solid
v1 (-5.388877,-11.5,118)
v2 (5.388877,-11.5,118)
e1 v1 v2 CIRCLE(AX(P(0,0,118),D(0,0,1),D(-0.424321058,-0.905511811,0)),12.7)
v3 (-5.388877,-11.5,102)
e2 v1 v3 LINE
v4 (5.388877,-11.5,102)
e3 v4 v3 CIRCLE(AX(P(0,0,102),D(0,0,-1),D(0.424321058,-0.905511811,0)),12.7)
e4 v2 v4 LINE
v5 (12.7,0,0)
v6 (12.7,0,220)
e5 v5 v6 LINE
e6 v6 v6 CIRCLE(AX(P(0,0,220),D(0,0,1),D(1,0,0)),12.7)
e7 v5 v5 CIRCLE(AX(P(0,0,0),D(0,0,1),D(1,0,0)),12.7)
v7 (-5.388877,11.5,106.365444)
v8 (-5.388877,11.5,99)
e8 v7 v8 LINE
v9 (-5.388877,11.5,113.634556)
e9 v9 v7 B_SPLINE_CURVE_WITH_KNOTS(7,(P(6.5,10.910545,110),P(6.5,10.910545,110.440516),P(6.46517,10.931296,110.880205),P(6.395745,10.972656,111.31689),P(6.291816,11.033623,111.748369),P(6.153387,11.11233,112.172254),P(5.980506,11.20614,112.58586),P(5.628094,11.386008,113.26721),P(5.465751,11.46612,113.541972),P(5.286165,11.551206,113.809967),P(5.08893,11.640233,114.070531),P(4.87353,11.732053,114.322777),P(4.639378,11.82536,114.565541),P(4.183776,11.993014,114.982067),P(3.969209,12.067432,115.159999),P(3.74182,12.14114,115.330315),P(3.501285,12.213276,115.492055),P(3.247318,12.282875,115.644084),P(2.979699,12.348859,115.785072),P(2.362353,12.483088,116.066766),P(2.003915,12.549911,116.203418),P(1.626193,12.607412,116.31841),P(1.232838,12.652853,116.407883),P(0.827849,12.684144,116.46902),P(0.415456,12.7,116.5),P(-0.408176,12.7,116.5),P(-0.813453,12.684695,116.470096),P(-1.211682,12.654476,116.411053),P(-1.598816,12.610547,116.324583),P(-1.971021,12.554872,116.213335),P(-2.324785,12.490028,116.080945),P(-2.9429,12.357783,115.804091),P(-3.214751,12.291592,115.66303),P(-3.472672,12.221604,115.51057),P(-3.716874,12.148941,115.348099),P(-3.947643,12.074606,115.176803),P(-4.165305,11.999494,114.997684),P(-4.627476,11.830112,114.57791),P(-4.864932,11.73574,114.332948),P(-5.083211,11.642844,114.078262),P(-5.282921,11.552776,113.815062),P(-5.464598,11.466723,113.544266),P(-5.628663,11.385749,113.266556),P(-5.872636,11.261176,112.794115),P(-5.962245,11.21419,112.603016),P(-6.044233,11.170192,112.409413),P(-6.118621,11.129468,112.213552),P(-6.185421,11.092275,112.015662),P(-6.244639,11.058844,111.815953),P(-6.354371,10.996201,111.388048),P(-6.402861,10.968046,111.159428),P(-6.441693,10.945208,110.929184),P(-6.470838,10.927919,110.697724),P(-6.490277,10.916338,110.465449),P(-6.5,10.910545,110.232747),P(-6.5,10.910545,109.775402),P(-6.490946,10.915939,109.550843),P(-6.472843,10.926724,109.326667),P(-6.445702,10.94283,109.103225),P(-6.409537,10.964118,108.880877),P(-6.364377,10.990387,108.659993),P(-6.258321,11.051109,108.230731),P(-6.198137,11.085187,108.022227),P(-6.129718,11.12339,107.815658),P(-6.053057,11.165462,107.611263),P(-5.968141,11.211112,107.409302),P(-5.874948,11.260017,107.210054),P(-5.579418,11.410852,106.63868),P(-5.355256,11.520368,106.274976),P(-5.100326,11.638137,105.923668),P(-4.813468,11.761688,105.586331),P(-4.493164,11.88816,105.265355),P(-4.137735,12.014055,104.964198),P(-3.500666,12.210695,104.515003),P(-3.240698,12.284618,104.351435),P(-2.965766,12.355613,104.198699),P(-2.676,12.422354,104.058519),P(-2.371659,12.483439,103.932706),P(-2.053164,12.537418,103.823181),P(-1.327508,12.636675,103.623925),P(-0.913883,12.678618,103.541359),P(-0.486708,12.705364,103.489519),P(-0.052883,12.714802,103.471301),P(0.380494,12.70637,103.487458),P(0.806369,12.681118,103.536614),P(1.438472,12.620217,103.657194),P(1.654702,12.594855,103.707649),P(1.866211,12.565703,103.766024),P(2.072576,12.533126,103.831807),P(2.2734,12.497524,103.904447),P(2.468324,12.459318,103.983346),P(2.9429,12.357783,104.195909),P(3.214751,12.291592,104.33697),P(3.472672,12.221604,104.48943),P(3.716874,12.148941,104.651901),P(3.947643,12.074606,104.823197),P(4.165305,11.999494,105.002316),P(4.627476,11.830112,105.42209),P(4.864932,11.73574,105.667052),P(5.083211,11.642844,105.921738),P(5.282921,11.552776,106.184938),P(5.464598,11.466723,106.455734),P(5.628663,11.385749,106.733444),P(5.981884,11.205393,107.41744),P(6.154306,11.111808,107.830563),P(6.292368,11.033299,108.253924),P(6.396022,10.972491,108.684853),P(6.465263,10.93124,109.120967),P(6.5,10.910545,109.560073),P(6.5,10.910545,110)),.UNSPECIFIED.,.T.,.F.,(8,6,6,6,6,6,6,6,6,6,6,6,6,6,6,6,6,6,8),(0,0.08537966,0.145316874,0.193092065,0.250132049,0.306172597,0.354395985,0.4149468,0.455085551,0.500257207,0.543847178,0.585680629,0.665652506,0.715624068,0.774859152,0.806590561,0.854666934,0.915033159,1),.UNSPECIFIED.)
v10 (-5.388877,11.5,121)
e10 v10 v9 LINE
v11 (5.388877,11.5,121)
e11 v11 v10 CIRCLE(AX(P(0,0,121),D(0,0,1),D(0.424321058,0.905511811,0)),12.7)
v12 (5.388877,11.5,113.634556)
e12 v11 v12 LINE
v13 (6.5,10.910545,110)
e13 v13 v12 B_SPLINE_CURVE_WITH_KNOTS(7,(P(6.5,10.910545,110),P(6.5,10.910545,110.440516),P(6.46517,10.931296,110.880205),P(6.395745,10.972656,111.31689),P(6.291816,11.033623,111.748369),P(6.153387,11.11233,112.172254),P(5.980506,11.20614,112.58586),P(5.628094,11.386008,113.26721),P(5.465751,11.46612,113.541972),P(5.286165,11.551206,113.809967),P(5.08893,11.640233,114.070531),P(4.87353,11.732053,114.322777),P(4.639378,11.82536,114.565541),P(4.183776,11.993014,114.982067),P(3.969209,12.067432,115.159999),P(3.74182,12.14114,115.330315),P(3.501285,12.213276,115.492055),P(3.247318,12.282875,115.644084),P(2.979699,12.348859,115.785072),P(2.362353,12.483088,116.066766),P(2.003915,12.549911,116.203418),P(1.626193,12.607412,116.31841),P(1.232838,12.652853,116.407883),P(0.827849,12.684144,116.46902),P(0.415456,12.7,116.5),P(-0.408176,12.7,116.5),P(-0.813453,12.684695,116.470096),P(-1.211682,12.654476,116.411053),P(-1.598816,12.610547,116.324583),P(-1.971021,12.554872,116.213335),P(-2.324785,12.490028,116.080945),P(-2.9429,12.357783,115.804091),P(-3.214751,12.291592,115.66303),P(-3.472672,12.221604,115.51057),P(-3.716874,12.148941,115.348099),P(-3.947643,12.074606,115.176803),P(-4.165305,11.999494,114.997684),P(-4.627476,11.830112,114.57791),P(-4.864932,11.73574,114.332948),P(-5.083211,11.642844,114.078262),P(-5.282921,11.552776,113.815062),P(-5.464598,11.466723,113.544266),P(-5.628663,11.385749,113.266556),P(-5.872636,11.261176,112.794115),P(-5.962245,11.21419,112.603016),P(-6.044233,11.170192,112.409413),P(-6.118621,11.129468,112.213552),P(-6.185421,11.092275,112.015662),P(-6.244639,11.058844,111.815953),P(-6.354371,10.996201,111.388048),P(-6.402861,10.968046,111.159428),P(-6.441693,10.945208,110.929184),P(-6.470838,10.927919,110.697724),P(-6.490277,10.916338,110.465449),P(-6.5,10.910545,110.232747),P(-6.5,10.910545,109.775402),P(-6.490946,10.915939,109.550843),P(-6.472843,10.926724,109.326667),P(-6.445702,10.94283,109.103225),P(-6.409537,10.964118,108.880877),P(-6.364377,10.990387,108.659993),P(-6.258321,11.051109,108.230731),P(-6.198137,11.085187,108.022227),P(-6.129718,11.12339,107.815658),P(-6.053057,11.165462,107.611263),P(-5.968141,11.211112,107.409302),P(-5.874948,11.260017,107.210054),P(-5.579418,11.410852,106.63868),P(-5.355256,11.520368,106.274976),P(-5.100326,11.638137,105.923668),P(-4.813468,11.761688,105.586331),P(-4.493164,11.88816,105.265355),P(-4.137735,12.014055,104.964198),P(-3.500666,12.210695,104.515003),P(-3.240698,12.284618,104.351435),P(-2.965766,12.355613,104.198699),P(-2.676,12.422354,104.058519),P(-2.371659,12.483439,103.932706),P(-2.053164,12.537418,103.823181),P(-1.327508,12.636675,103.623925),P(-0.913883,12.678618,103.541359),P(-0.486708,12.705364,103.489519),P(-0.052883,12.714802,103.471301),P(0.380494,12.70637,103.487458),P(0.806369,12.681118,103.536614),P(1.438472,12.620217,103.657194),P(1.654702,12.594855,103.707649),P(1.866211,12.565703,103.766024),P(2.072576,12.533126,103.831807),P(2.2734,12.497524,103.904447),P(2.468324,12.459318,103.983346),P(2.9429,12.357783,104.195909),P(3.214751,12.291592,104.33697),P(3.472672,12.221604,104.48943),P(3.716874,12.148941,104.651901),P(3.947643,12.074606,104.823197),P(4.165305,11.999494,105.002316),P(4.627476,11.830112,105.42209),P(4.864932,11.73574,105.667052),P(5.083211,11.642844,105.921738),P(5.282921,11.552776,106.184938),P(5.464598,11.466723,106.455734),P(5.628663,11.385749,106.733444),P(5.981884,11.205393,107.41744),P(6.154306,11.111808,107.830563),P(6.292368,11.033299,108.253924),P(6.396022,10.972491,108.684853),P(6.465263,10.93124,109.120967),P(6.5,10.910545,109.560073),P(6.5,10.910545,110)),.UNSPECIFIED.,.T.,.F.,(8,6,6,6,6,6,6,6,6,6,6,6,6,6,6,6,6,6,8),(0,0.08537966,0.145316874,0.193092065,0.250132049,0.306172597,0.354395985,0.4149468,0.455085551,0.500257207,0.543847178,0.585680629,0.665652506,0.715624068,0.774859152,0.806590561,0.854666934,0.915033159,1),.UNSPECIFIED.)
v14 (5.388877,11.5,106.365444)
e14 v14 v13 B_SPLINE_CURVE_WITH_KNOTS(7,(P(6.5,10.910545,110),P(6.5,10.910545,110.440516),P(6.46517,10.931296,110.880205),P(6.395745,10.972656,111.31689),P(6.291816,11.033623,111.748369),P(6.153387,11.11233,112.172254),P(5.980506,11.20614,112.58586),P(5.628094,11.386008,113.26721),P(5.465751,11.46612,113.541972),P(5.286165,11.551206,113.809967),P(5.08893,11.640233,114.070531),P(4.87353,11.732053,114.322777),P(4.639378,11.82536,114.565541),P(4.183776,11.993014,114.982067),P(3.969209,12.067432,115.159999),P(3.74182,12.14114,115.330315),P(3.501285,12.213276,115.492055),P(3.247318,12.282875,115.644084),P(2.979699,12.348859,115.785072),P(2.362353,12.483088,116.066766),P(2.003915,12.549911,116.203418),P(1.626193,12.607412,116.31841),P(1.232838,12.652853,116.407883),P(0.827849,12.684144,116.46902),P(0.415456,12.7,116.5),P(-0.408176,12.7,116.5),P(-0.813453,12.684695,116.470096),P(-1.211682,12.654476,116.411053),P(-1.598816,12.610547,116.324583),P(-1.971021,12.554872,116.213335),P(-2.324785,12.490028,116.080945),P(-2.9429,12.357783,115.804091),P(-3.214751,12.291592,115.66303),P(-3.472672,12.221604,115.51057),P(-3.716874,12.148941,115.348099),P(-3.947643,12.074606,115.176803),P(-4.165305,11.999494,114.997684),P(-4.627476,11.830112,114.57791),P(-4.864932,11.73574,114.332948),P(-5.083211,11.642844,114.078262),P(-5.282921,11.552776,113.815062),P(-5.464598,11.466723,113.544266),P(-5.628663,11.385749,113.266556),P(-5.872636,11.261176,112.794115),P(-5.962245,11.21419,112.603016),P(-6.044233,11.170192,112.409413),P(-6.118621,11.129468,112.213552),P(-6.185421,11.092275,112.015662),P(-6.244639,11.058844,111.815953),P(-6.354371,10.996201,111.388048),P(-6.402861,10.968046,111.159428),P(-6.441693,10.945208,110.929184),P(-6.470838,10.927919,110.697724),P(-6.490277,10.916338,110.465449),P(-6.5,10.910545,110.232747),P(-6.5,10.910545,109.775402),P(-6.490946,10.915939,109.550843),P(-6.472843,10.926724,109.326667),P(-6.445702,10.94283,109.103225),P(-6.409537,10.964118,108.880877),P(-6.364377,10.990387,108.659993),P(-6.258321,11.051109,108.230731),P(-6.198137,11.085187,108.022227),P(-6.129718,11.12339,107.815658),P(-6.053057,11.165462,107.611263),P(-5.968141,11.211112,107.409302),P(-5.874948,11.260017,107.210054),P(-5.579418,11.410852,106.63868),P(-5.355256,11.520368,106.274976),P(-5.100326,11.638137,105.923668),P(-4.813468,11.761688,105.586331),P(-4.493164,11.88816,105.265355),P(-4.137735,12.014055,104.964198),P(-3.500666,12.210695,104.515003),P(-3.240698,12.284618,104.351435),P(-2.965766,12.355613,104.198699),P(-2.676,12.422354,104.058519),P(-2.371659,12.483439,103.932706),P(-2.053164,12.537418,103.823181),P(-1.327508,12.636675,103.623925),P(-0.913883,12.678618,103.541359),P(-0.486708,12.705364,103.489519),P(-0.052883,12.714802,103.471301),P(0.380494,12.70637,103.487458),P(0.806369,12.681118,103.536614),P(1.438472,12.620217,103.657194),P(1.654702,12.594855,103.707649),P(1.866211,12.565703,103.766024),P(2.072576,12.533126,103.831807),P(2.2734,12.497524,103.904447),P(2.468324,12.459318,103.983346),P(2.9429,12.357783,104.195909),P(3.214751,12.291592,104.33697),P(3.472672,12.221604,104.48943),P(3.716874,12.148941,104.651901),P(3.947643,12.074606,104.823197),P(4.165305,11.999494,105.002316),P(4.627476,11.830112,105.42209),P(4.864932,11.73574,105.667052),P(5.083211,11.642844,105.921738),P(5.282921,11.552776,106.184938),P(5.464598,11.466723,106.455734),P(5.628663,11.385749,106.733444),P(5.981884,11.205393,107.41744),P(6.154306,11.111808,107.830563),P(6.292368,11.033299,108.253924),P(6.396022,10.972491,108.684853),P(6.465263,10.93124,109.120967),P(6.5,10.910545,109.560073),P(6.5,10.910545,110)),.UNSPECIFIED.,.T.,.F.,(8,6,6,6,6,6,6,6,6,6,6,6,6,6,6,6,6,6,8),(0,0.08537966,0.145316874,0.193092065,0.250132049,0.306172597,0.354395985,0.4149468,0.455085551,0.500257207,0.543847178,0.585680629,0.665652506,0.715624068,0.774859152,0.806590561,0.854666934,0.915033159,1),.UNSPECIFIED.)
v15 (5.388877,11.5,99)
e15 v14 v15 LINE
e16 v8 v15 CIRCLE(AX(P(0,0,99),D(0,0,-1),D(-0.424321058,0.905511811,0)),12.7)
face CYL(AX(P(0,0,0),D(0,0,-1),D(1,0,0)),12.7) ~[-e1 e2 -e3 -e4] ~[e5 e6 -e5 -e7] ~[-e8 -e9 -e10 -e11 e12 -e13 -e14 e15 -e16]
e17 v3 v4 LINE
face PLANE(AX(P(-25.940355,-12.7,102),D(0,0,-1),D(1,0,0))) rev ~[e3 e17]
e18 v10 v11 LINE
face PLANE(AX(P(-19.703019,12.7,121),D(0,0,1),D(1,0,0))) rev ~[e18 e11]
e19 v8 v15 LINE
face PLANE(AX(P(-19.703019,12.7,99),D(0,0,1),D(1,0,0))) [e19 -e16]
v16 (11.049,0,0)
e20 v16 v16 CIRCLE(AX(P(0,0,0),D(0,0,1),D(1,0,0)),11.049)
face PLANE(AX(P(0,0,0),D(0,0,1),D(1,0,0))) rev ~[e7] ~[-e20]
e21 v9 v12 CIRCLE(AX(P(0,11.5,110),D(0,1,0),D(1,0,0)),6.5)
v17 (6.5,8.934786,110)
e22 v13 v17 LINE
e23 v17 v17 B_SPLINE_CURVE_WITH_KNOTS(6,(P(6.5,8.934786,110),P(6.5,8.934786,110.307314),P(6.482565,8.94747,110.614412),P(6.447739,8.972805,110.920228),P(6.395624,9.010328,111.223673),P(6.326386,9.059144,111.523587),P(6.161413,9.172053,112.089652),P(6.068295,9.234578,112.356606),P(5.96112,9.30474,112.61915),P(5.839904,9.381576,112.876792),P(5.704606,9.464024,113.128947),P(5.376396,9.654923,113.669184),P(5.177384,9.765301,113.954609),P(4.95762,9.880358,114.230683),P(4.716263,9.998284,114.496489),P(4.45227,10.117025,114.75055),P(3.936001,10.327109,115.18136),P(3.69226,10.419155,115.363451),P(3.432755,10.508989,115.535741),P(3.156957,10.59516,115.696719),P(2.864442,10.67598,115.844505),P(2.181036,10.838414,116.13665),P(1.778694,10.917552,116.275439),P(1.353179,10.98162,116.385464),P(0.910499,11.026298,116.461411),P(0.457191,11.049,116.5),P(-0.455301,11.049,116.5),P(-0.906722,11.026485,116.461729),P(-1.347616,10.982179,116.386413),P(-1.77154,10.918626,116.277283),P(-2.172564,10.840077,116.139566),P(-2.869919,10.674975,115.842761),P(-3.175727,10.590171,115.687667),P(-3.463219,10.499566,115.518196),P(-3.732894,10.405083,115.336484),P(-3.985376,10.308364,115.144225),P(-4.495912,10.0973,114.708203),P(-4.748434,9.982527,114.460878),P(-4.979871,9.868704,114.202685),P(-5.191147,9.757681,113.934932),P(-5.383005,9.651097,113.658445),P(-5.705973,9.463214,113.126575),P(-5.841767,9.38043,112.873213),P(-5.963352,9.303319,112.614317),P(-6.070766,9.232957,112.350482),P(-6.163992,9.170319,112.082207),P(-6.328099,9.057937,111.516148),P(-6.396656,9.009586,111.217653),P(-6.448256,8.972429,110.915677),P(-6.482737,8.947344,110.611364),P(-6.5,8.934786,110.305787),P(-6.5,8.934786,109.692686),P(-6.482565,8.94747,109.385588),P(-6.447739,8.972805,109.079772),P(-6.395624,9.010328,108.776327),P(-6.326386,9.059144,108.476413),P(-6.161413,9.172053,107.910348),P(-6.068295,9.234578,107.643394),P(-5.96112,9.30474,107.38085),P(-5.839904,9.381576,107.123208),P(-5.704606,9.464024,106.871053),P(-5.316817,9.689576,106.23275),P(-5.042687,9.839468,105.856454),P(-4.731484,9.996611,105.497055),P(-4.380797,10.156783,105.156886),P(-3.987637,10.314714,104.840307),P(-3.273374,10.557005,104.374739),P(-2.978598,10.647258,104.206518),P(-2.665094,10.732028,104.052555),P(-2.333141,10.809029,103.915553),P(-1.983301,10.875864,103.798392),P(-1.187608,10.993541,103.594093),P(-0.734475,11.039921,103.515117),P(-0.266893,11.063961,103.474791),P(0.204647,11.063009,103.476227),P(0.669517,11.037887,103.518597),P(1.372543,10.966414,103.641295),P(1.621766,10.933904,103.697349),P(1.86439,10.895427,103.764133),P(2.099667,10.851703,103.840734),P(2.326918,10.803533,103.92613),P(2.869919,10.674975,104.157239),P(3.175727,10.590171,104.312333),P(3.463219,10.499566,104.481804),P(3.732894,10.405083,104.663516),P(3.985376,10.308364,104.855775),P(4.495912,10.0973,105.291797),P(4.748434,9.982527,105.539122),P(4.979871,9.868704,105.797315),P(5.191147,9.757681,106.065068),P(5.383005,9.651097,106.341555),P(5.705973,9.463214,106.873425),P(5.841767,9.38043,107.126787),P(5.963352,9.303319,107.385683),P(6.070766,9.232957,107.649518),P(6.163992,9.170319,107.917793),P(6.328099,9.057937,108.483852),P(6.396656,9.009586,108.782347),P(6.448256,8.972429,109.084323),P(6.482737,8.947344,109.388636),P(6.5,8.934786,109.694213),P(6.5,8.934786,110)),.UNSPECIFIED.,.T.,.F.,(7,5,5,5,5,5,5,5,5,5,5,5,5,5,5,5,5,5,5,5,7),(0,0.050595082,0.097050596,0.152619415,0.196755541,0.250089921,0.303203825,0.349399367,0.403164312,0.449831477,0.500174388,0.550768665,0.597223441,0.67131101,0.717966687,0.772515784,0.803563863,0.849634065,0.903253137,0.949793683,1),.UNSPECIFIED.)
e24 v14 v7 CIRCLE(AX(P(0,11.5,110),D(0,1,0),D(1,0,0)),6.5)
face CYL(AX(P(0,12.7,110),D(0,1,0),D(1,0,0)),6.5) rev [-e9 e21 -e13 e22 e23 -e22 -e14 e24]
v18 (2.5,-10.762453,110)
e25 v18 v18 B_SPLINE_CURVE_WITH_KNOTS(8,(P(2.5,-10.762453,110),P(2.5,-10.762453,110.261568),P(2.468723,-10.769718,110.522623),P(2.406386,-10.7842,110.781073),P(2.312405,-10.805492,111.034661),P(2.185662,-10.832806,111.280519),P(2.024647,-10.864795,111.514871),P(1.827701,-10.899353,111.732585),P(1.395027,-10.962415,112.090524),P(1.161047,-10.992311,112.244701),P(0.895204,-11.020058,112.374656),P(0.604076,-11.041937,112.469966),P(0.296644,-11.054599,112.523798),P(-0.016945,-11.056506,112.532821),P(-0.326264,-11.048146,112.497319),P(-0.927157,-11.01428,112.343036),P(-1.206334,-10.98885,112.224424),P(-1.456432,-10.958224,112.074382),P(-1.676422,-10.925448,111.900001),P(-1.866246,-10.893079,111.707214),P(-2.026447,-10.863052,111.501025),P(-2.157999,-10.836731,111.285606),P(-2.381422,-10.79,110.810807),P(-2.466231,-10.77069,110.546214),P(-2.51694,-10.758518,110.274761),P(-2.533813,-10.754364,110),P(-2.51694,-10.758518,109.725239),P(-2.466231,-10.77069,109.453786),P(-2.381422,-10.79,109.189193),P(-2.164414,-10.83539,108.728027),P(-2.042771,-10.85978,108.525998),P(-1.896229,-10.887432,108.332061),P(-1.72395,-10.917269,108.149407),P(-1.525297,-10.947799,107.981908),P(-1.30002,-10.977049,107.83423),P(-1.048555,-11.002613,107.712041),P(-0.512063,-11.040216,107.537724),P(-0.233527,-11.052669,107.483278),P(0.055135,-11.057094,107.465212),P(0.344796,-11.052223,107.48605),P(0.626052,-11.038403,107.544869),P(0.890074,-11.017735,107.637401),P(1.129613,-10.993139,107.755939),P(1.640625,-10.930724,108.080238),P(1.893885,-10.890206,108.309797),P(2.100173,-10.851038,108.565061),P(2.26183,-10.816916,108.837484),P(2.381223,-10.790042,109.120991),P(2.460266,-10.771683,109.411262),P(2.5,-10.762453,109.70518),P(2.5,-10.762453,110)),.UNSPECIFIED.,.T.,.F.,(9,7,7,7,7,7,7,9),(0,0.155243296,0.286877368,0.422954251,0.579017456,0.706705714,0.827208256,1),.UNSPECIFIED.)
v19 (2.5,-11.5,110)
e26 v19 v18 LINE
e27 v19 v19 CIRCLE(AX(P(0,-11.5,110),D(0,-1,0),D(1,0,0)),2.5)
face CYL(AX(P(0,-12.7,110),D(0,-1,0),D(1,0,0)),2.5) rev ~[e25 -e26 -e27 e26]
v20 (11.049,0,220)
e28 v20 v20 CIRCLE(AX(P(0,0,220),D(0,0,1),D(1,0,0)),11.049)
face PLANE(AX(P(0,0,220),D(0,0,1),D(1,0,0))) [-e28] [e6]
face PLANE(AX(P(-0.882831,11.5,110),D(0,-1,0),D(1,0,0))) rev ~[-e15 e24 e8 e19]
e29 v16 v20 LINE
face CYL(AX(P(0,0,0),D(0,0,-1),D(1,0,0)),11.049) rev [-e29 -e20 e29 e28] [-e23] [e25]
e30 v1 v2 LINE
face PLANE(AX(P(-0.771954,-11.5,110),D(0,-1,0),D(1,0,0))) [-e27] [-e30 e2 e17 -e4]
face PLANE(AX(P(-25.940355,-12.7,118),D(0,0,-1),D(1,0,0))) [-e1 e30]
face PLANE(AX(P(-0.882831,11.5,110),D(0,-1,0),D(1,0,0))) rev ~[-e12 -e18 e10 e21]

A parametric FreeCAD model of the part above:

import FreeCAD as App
import Part
import Sketcher

V = App.Vector
Q = App.Units.Quantity

doc = App.newDocument("Part")
body = doc.addObject("PartDesign::Body", "Body")

# Sketch on XY plane
sketch1 = body.newObject("Sketcher::SketchObject", "Sketch")
sketch1.AttachmentSupport = (doc.getObject("XY_Plane"), [""])
sketch1.MapMode = "FlatFace"
sketch1.addGeometry(Part.Circle(V(0, 0, 0), V(0, 0, 1), 12.7), False)
sketch1.addGeometry(Part.Circle(V(0, 0, 0), V(0, 0, 1), 11.049), False)
sketch1.addConstraint(Sketcher.Constraint("Coincident", 0, 3, -1, 1))
sketch1.addConstraint(Sketcher.Constraint("Coincident", 1, 3, -1, 1))
sketch1.addConstraint(Sketcher.Constraint("Diameter", 0, Q("25.4 mm")))
sketch1.addConstraint(Sketcher.Constraint("Diameter", 1, Q("22.098 mm")))
pad1 = body.newObject("PartDesign::Pad", "Pad")
pad1.Profile = sketch1
pad1.Length = 220

# Sketch on XZ plane
sketch2 = body.newObject("Sketcher::SketchObject", "Sketch001")
sketch2.AttachmentSupport = (doc.getObject("XZ_Plane"), [""])
sketch2.MapMode = "FlatFace"
sketch2.AttachmentOffset = App.Placement(V(0, 0, -12.7), App.Rotation())
sketch2.addGeometry(Part.Circle(V(0, 110, 0), V(0, 0, 1), 6.5), False)
sketch2.addConstraint(Sketcher.Constraint("PointOnObject", 0, 3, -2))
sketch2.addConstraint(Sketcher.Constraint("Diameter", 0, Q("13 mm")))
sketch2.addConstraint(Sketcher.Constraint("DistanceY", -1, 1, 0, 3, Q("110 mm")))
pocket1 = body.newObject("PartDesign::Pocket", "Pocket")
pocket1.Profile = sketch2
pocket1.Length = 15
pocket1.Reversed = True

# Sketch on XZ plane
sketch3 = body.newObject("Sketcher::SketchObject", "Sketch002")
sketch3.AttachmentSupport = (doc.getObject("XZ_Plane"), [""])
sketch3.MapMode = "FlatFace"
sketch3.AttachmentOffset = App.Placement(V(0, 0, -12.7), App.Rotation())
sketch3.addGeometry(Part.LineSegment(V(-19.703019, 121, 0), V(-19.703019, 99, 0)), False)
sketch3.addGeometry(Part.LineSegment(V(-19.703019, 99, 0), V(17.937358, 99, 0)), False)
sketch3.addGeometry(Part.LineSegment(V(17.937358, 99, 0), V(17.937358, 121, 0)), False)
sketch3.addGeometry(Part.LineSegment(V(17.937358, 121, 0), V(-19.703019, 121, 0)), False)
sketch3.addConstraint(Sketcher.Constraint("Coincident", 0, 2, 1, 1))
sketch3.addConstraint(Sketcher.Constraint("Coincident", 1, 2, 2, 1))
sketch3.addConstraint(Sketcher.Constraint("Coincident", 2, 2, 3, 1))
sketch3.addConstraint(Sketcher.Constraint("Coincident", 3, 2, 0, 1))
sketch3.addConstraint(Sketcher.Constraint("Vertical", 0))
sketch3.addConstraint(Sketcher.Constraint("Horizontal", 1))
sketch3.addConstraint(Sketcher.Constraint("Vertical", 2))
sketch3.addConstraint(Sketcher.Constraint("Horizontal", 3))
sketch3.addConstraint(Sketcher.Constraint("DistanceY", 0, 2, 0, 1, Q("22 mm")))
sketch3.addConstraint(Sketcher.Constraint("DistanceY", -1, 1, 0, 2, Q("99 mm")))
sketch3.addConstraint(Sketcher.Constraint("DistanceX", 1, 1, 1, 2, Q("37.640377 mm")))
sketch3.addConstraint(Sketcher.Constraint("DistanceX", 0, 2, -1, 1, Q("19.703019 mm")))
pocket2 = body.newObject("PartDesign::Pocket", "Pocket001")
pocket2.Profile = sketch3
pocket2.Length = 1.2
pocket2.Reversed = True

# Sketch on XZ plane
sketch4 = body.newObject("Sketcher::SketchObject", "Sketch003")
sketch4.AttachmentSupport = (doc.getObject("XZ_Plane"), [""])
sketch4.MapMode = "FlatFace"
sketch4.AttachmentOffset = App.Placement(V(0, 0, 12.7), App.Rotation())
sketch4.addGeometry(Part.Circle(V(0, 110, 0), V(0, 0, 1), 2.5), False)
sketch4.addConstraint(Sketcher.Constraint("PointOnObject", 0, 3, -2))
sketch4.addConstraint(Sketcher.Constraint("Diameter", 0, Q("5 mm")))
sketch4.addConstraint(Sketcher.Constraint("DistanceY", -1, 1, 0, 3, Q("110 mm")))
pocket3 = body.newObject("PartDesign::Pocket", "Pocket002")
pocket3.Profile = sketch4
pocket3.Length = 15

# Sketch on XZ plane
sketch5 = body.newObject("Sketcher::SketchObject", "Sketch004")
sketch5.AttachmentSupport = (doc.getObject("XZ_Plane"), [""])
sketch5.MapMode = "FlatFace"
sketch5.AttachmentOffset = App.Placement(V(0, 0, 12.7), App.Rotation())
sketch5.addGeometry(Part.LineSegment(V(-25.940355, 118, 0), V(-25.940355, 102, 0)), False)
sketch5.addGeometry(Part.LineSegment(V(-25.940355, 102, 0), V(24.396446, 102, 0)), False)
sketch5.addGeometry(Part.LineSegment(V(24.396446, 102, 0), V(24.396446, 118, 0)), False)
sketch5.addGeometry(Part.LineSegment(V(24.396446, 118, 0), V(-25.940355, 118, 0)), False)
sketch5.addConstraint(Sketcher.Constraint("Coincident", 0, 2, 1, 1))
sketch5.addConstraint(Sketcher.Constraint("Coincident", 1, 2, 2, 1))
sketch5.addConstraint(Sketcher.Constraint("Coincident", 2, 2, 3, 1))
sketch5.addConstraint(Sketcher.Constraint("Coincident", 3, 2, 0, 1))
sketch5.addConstraint(Sketcher.Constraint("Vertical", 0))
sketch5.addConstraint(Sketcher.Constraint("Horizontal", 1))
sketch5.addConstraint(Sketcher.Constraint("Vertical", 2))
sketch5.addConstraint(Sketcher.Constraint("Horizontal", 3))
sketch5.addConstraint(Sketcher.Constraint("DistanceY", 0, 2, 0, 1, Q("16 mm")))
sketch5.addConstraint(Sketcher.Constraint("DistanceY", -1, 1, 0, 2, Q("102 mm")))
sketch5.addConstraint(Sketcher.Constraint("DistanceX", 1, 1, 1, 2, Q("50.336801 mm")))
sketch5.addConstraint(Sketcher.Constraint("DistanceX", 0, 2, -1, 1, Q("25.940355 mm")))
pocket4 = body.newObject("PartDesign::Pocket", "Pocket003")
pocket4.Profile = sketch5
pocket4.Length = 1.2

doc.recompute()
